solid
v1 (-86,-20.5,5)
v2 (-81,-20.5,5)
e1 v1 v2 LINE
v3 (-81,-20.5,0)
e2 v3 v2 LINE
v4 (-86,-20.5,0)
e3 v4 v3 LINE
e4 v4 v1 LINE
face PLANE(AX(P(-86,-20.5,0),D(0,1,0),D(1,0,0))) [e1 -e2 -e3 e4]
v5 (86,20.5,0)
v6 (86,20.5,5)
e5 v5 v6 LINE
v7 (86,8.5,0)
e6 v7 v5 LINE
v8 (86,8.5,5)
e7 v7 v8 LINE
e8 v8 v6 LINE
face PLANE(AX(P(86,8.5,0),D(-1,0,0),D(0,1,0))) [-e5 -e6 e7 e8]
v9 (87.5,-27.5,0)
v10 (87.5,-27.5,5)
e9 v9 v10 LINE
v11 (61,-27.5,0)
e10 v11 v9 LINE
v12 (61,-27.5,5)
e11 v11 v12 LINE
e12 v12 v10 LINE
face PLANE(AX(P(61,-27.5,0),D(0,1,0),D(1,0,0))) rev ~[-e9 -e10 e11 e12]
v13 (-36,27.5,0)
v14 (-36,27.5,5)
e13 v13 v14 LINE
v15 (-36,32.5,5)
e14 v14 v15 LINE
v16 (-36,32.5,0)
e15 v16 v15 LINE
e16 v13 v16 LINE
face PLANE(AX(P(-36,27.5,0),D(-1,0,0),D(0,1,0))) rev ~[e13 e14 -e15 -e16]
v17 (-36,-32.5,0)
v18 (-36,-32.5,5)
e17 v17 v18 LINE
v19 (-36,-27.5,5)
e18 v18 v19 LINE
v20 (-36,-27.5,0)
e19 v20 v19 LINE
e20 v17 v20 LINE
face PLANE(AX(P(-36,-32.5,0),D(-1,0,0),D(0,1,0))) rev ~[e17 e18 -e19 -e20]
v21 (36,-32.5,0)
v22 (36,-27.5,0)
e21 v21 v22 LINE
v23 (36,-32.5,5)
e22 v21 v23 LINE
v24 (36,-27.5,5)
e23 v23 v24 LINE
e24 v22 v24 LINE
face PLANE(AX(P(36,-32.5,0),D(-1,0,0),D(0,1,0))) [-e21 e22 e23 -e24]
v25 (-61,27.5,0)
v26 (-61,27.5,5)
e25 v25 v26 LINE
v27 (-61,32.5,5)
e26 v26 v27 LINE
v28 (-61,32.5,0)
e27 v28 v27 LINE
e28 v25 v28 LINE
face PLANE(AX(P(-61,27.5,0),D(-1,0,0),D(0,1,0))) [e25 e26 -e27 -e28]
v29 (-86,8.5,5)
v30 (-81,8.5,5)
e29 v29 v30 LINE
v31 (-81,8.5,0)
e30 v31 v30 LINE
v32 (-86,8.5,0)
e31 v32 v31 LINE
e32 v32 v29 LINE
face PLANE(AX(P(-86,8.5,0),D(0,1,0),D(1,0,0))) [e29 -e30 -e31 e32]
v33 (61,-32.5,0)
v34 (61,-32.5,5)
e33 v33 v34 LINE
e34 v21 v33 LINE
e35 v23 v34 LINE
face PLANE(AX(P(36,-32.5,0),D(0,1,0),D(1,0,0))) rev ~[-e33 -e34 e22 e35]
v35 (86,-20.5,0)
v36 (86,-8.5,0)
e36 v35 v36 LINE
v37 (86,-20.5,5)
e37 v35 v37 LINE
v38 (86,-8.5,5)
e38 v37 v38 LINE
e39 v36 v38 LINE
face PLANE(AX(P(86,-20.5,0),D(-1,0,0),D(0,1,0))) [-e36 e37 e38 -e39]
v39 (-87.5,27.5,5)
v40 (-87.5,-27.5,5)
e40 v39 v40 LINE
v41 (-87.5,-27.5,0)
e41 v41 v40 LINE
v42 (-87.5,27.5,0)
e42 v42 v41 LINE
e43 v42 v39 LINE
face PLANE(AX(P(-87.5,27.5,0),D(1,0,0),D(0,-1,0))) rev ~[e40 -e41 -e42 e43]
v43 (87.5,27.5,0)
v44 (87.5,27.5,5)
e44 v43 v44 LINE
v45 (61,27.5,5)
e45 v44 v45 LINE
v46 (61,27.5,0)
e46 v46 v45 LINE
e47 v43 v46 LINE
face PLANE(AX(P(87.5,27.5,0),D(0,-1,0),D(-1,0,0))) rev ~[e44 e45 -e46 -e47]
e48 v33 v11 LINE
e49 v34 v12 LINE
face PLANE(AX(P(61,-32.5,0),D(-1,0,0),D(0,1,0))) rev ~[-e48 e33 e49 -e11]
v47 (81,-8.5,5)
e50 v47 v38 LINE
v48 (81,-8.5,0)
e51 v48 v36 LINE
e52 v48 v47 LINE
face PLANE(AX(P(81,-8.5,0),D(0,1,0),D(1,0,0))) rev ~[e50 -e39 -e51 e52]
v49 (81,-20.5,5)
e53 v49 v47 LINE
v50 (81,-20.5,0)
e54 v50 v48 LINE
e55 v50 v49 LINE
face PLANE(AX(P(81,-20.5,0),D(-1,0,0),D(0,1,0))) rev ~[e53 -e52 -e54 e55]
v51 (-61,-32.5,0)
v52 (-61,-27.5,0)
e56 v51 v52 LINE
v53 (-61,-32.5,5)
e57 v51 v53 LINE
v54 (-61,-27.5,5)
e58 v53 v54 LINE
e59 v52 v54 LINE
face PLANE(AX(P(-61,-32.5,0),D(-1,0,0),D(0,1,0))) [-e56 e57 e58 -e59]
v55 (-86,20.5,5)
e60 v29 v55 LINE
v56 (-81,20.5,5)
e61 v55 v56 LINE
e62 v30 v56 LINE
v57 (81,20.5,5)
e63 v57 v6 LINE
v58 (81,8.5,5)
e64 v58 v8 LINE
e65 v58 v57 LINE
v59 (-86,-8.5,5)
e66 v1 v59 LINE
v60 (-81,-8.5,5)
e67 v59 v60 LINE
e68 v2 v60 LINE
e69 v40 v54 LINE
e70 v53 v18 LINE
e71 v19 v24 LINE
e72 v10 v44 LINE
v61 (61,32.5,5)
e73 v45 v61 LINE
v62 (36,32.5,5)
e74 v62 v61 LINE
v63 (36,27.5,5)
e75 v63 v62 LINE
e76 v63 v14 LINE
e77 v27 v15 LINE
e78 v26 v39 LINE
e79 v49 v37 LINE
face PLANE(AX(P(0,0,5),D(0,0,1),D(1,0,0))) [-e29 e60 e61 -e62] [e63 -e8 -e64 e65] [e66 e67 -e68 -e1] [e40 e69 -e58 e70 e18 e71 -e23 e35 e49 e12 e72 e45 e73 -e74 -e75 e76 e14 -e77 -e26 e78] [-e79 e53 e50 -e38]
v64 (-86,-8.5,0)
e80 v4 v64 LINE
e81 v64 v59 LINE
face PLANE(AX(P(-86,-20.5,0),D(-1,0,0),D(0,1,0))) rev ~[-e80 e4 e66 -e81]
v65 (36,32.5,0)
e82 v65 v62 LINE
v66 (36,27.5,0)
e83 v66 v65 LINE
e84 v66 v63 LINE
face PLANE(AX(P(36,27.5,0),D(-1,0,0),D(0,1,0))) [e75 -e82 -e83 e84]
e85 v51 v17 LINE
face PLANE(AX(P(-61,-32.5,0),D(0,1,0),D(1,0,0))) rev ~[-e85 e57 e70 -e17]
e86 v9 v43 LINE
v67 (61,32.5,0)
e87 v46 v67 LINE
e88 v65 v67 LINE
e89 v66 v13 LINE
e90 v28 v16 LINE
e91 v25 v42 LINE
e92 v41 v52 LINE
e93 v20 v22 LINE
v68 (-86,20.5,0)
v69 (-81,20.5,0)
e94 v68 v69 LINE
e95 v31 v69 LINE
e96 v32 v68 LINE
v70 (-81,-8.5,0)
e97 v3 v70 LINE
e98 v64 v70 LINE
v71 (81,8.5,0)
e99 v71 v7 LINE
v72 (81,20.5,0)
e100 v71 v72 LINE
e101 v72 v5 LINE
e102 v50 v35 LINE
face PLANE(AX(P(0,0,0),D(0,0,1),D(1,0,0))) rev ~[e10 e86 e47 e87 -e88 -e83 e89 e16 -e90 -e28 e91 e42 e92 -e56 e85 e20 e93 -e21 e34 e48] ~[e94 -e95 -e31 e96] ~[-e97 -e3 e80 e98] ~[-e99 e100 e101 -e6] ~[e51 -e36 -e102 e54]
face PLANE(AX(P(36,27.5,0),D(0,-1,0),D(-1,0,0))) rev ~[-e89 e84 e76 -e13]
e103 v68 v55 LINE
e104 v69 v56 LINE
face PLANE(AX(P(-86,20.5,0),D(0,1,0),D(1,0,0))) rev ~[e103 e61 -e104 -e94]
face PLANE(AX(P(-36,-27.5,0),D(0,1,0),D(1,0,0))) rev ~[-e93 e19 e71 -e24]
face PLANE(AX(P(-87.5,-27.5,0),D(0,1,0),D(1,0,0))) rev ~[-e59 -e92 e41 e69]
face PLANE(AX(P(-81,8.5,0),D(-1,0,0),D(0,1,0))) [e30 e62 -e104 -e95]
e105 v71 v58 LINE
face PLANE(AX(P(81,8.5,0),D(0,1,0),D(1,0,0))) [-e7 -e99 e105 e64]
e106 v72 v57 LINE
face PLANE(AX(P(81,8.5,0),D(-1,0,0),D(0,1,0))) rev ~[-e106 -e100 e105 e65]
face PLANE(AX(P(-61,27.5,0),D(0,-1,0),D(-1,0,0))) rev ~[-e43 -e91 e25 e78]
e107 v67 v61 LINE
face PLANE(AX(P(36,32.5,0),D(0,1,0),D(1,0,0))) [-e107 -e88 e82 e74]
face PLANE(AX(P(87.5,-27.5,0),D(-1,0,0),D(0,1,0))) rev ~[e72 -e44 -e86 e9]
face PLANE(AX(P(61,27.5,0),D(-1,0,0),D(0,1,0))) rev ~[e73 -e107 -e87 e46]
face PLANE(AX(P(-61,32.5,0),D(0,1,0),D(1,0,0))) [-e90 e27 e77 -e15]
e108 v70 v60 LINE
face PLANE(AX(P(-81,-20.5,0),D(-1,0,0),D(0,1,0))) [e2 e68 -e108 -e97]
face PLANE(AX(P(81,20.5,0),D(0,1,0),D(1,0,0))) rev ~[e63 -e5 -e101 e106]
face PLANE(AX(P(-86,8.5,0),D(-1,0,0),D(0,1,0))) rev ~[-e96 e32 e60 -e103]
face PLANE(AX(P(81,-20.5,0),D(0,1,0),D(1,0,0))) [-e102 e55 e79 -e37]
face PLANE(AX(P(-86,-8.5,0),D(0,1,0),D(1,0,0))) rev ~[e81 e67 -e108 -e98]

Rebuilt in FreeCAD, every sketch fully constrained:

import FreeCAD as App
import Part
import Sketcher

doc = App.newDocument("Part")
body = doc.addObject("PartDesign::Body", "Body")

# Sketch on XY plane
sketch1 = doc.addObject("Sketcher::SketchObject", "Sketch")
body.addObject(sketch1)
sketch1.AttachmentSupport = (doc.XY_Plane, [""])
sketch1.MapMode = "FlatFace"
sketch1.addGeometry([
    Part.LineSegment(App.Vector(87.5, -27.5, 0), App.Vector(87.5, 27.5, 0)),  # 0
    Part.LineSegment(App.Vector(87.5, 27.5, 0), App.Vector(61, 27.5, 0)),  # 1
    Part.LineSegment(App.Vector(61, 27.5, 0), App.Vector(61, 32.5, 0)),  # 2
    Part.LineSegment(App.Vector(61, 32.5, 0), App.Vector(36, 32.5, 0)),  # 3
    Part.LineSegment(App.Vector(36, 32.5, 0), App.Vector(36, 27.5, 0)),  # 4
    Part.LineSegment(App.Vector(36, 27.5, 0), App.Vector(-36, 27.5, 0)),  # 5
    Part.LineSegment(App.Vector(-36, 27.5, 0), App.Vector(-36, 32.5, 0)),  # 6
    Part.LineSegment(App.Vector(-36, 32.5, 0), App.Vector(-61, 32.5, 0)),  # 7
    Part.LineSegment(App.Vector(-61, 32.5, 0), App.Vector(-61, 27.5, 0)),  # 8
    Part.LineSegment(App.Vector(-61, 27.5, 0), App.Vector(-87.5, 27.5, 0)),  # 9
    Part.LineSegment(App.Vector(-87.5, 27.5, 0), App.Vector(-87.5, -27.5, 0)),  # 10
    Part.LineSegment(App.Vector(-87.5, -27.5, 0), App.Vector(-61, -27.5, 0)),  # 11
    Part.LineSegment(App.Vector(-61, -27.5, 0), App.Vector(-61, -32.5, 0)),  # 12
    Part.LineSegment(App.Vector(-61, -32.5, 0), App.Vector(-36, -32.5, 0)),  # 13
    Part.LineSegment(App.Vector(-36, -32.5, 0), App.Vector(-36, -27.5, 0)),  # 14
    Part.LineSegment(App.Vector(-36, -27.5, 0), App.Vector(36, -27.5, 0)),  # 15
    Part.LineSegment(App.Vector(36, -27.5, 0), App.Vector(36, -32.5, 0)),  # 16
    Part.LineSegment(App.Vector(36, -32.5, 0), App.Vector(61, -32.5, 0)),  # 17
    Part.LineSegment(App.Vector(61, -32.5, 0), App.Vector(61, -27.5, 0)),  # 18
    Part.LineSegment(App.Vector(61, -27.5, 0), App.Vector(87.5, -27.5, 0)),  # 19
    Part.LineSegment(App.Vector(-81, -20.5, 0), App.Vector(-86, -20.5, 0)),  # 20
    Part.LineSegment(App.Vector(-86, -20.5, 0), App.Vector(-86, -8.5, 0)),  # 21
    Part.LineSegment(App.Vector(-86, -8.5, 0), App.Vector(-81, -8.5, 0)),  # 22
    Part.LineSegment(App.Vector(-81, -8.5, 0), App.Vector(-81, -20.5, 0)),  # 23
    Part.LineSegment(App.Vector(86, -20.5, 0), App.Vector(81, -20.5, 0)),  # 24
    Part.LineSegment(App.Vector(81, -20.5, 0), App.Vector(81, -8.5, 0)),  # 25
    Part.LineSegment(App.Vector(81, -8.5, 0), App.Vector(86, -8.5, 0)),  # 26
    Part.LineSegment(App.Vector(86, -8.5, 0), App.Vector(86, -20.5, 0)),  # 27
    Part.LineSegment(App.Vector(-81, 8.5, 0), App.Vector(-86, 8.5, 0)),  # 28
    Part.LineSegment(App.Vector(-86, 8.5, 0), App.Vector(-86, 20.5, 0)),  # 29
    Part.LineSegment(App.Vector(-86, 20.5, 0), App.Vector(-81, 20.5, 0)),  # 30
    Part.LineSegment(App.Vector(-81, 20.5, 0), App.Vector(-81, 8.5, 0)),  # 31
    Part.LineSegment(App.Vector(86, 8.5, 0), App.Vector(81, 8.5, 0)),  # 32
    Part.LineSegment(App.Vector(81, 8.5, 0), App.Vector(81, 20.5, 0)),  # 33
    Part.LineSegment(App.Vector(81, 20.5, 0), App.Vector(86, 20.5, 0)),  # 34
    Part.LineSegment(App.Vector(86, 20.5, 0), App.Vector(86, 8.5, 0)),  # 35
], False)
sketch1.addConstraint([
    Sketcher.Constraint("Coincident", 0, 2, 1, 1),
    Sketcher.Constraint("Coincident", 1, 2, 2, 1),
    Sketcher.Constraint("Coincident", 2, 2, 3, 1),
    Sketcher.Constraint("Coincident", 3, 2, 4, 1),
    Sketcher.Constraint("Coincident", 4, 2, 5, 1),
    Sketcher.Constraint("Coincident", 5, 2, 6, 1),
    Sketcher.Constraint("Coincident", 6, 2, 7, 1),
    Sketcher.Constraint("Coincident", 7, 2, 8, 1),
    Sketcher.Constraint("Coincident", 8, 2, 9, 1),
    Sketcher.Constraint("Coincident", 9, 2, 10, 1),
    Sketcher.Constraint("Coincident", 10, 2, 11, 1),
    Sketcher.Constraint("Coincident", 11, 2, 12, 1),
    Sketcher.Constraint("Coincident", 12, 2, 13, 1),
    Sketcher.Constraint("Coincident", 13, 2, 14, 1),
    Sketcher.Constraint("Coincident", 14, 2, 15, 1),
    Sketcher.Constraint("Coincident", 15, 2, 16, 1),
    Sketcher.Constraint("Coincident", 16, 2, 17, 1),
    Sketcher.Constraint("Coincident", 17, 2, 18, 1),
    Sketcher.Constraint("Coincident", 18, 2, 19, 1),
    Sketcher.Constraint("Coincident", 19, 2, 0, 1),
    Sketcher.Constraint("Coincident", 20, 2, 21, 1),
    Sketcher.Constraint("Coincident", 21, 2, 22, 1),
    Sketcher.Constraint("Coincident", 22, 2, 23, 1),
    Sketcher.Constraint("Coincident", 23, 2, 20, 1),
    Sketcher.Constraint("Coincident", 24, 2, 25, 1),
    Sketcher.Constraint("Coincident", 25, 2, 26, 1),
    Sketcher.Constraint("Coincident", 26, 2, 27, 1),
    Sketcher.Constraint("Coincident", 27, 2, 24, 1),
    Sketcher.Constraint("Coincident", 28, 2, 29, 1),
    Sketcher.Constraint("Coincident", 29, 2, 30, 1),
    Sketcher.Constraint("Coincident", 30, 2, 31, 1),
    Sketcher.Constraint("Coincident", 31, 2, 28, 1),
    Sketcher.Constraint("Coincident", 32, 2, 33, 1),
    Sketcher.Constraint("Coincident", 33, 2, 34, 1),
    Sketcher.Constraint("Coincident", 34, 2, 35, 1),
    Sketcher.Constraint("Coincident", 35, 2, 32, 1),
    Sketcher.Constraint("Vertical", 0),
    Sketcher.Constraint("Horizontal", 1),
    Sketcher.Constraint("Vertical", 2),
    Sketcher.Constraint("Horizontal", 3),
    Sketcher.Constraint("Vertical", 4),
    Sketcher.Constraint("Horizontal", 5),
    Sketcher.Constraint("Vertical", 6),
    Sketcher.Constraint("Horizontal", 7),
    Sketcher.Constraint("Vertical", 8),
    Sketcher.Constraint("Horizontal", 9),
    Sketcher.Constraint("Vertical", 10),
    Sketcher.Constraint("Horizontal", 11),
    Sketcher.Constraint("Vertical", 12),
    Sketcher.Constraint("Horizontal", 13),
    Sketcher.Constraint("Vertical", 14),
    Sketcher.Constraint("Horizontal", 15),
    Sketcher.Constraint("Vertical", 16),
    Sketcher.Constraint("Horizontal", 17),
    Sketcher.Constraint("Vertical", 18),
    Sketcher.Constraint("Horizontal", 19),
    Sketcher.Constraint("Horizontal", 20),
    Sketcher.Constraint("Vertical", 21),
    Sketcher.Constraint("Horizontal", 22),
    Sketcher.Constraint("Vertical", 23),
    Sketcher.Constraint("Horizontal", 24),
    Sketcher.Constraint("Vertical", 25),
    Sketcher.Constraint("Horizontal", 26),
    Sketcher.Constraint("Vertical", 27),
    Sketcher.Constraint("Horizontal", 28),
    Sketcher.Constraint("Vertical", 29),
    Sketcher.Constraint("Horizontal", 30),
    Sketcher.Constraint("Vertical", 31),
    Sketcher.Constraint("Horizontal", 32),
    Sketcher.Constraint("Vertical", 33),
    Sketcher.Constraint("Horizontal", 34),
    Sketcher.Constraint("Vertical", 35),
    Sketcher.Constraint("Symmetric", 0, 2, 10, 2, -1, 1),
    Sketcher.Constraint("Symmetric", 2, 2, 12, 2, -1, 1),
    Sketcher.Constraint("Symmetric", 4, 2, 14, 2, -1, 1),
    Sketcher.Constraint("Symmetric", 6, 2, 16, 2, -1, 1),
    Sketcher.Constraint("Symmetric", 8, 2, 18, 2, -1, 1),
    Sketcher.Constraint("Symmetric", 26, 2, 28, 2, -1, 1),
    Sketcher.Constraint("Symmetric", 24, 2, 30, 2, -1, 1),
    Sketcher.Constraint("Symmetric", 22, 2, 32, 2, -1, 1),
    Sketcher.Constraint("Symmetric", 20, 2, 34, 2, -1, 1),
    Sketcher.Constraint("Symmetric", 3, 2, 6, 2, -2),
    Sketcher.Constraint("Symmetric", 1, 2, 8, 2, -2),
    Sketcher.Constraint("Symmetric", 23, 2, 24, 2, -2),
    Sketcher.Constraint("Symmetric", 21, 2, 26, 2, -2),
    Sketcher.Constraint("Horizontal", 1, 2, 4, 2),
    Sketcher.Constraint("Equal", 34, 2),
    Sketcher.Constraint("DistanceX", 3, 2, 3, 1, 25.0),
    Sketcher.Constraint("DistanceX", 5, 2, 5, 1, 72.0),
    Sketcher.Constraint("DistanceX", 20, 2, 20, 1, 5.0),
    Sketcher.Constraint("DistanceY", 0, 1, 0, 2, 55.0),
    Sketcher.Constraint("DistanceY", 21, 1, 21, 2, 12.0),
    Sketcher.Constraint("DistanceX", 1, 2, 1, 1, 26.5),
    Sketcher.Constraint("DistanceX", 20, 2, -1, 1, 86.0),
    Sketcher.Constraint("DistanceY", 10, 2, 20, 2, 7.0),
])
pad1 = doc.addObject("PartDesign::Pad", "Pad")
body.addObject(pad1)
pad1.Profile = sketch1
pad1.Length = 5

doc.recompute()
